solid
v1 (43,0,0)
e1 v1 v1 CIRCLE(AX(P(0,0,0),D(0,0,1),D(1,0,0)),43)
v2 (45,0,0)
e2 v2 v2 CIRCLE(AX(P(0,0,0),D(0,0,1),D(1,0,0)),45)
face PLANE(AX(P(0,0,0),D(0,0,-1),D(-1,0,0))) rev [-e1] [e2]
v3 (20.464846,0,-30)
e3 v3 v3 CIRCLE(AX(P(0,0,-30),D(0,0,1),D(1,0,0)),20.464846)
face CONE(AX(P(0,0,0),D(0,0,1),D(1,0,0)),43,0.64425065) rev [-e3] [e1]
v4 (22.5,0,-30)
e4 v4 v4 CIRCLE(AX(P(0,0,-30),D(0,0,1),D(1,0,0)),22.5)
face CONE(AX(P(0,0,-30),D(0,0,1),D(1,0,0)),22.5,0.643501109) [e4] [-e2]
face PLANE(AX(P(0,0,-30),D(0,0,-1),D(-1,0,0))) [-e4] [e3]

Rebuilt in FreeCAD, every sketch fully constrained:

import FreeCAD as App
import Part
import Sketcher

V = App.Vector

doc = App.newDocument("Part")
params = doc.addObject("Spreadsheet::Sheet", "Params")
for row, (alias, value) in enumerate([
    ("sketch1_width", "2 mm"),
    ("sketch1_length", "37.5 mm"),
    ("revolution_angle", "360 deg"),
], start=1):
    params.set(f"A{row}", alias)
    params.set(f"B{row}", "=" + value)
    params.setAlias(f"B{row}", alias)

body = doc.addObject("PartDesign::Body", "Body")

sketch1 = body.newObject("Sketcher::SketchObject", "Sketch")
sketch1.AttachmentSupport = (doc.getObject("XZ_Plane"), [""])
sketch1.MapMode = "FlatFace"
sketch1.addGeometry(Part.LineSegment(V(-43, 0, 0), V(-20.5, -30, 0)), False)
sketch1.addGeometry(Part.LineSegment(V(-20.5, -30, 0), V(-22.5, -30, 0)), False)
sketch1.addGeometry(Part.LineSegment(V(-22.5, -30, 0), V(-45, 0, 0)), False)
sketch1.addGeometry(Part.LineSegment(V(-45, 0, 0), V(-43, 0, 0)), False)
sketch1.addConstraint(Sketcher.Constraint("Coincident", 0, 2, 1, 1))
sketch1.addConstraint(Sketcher.Constraint("Coincident", 1, 2, 2, 1))
sketch1.addConstraint(Sketcher.Constraint("Coincident", 2, 2, 3, 1))
sketch1.addConstraint(Sketcher.Constraint("Coincident", 3, 2, 0, 1))
sketch1.addConstraint(Sketcher.Constraint("Horizontal", 1))
sketch1.addConstraint(Sketcher.Constraint("Horizontal", 3))
sketch1.addConstraint(Sketcher.Constraint("PointOnObject", 2, 2, -1))
sketch1.addConstraint(Sketcher.Constraint("DistanceX", 3, 1, 3, 2, 2.0))
sketch1.addConstraint(Sketcher.Constraint("DistanceY", 0, 2, -1, 1, 30.0))
sketch1.addConstraint(Sketcher.Constraint("DistanceX", 2, 2, -1, 1, 45.0))
sketch1.addConstraint(Sketcher.Constraint("Distance", 2, 37.5))
sketch1.addConstraint(Sketcher.Constraint("DistanceX", 1, 2, 1, 1, 2.035154))
sketch1.setExpression("Constraints[7]", "Params.sketch1_width")
sketch1.setExpression("Constraints[10]", "Params.sketch1_length")
revolution = body.newObject("PartDesign::Revolution", "Revolution")
revolution.Profile = sketch1
revolution.ReferenceAxis = (sketch1, ["V_Axis"])
revolution.setExpression("Angle", "Params.revolution_angle")

doc.recompute()
